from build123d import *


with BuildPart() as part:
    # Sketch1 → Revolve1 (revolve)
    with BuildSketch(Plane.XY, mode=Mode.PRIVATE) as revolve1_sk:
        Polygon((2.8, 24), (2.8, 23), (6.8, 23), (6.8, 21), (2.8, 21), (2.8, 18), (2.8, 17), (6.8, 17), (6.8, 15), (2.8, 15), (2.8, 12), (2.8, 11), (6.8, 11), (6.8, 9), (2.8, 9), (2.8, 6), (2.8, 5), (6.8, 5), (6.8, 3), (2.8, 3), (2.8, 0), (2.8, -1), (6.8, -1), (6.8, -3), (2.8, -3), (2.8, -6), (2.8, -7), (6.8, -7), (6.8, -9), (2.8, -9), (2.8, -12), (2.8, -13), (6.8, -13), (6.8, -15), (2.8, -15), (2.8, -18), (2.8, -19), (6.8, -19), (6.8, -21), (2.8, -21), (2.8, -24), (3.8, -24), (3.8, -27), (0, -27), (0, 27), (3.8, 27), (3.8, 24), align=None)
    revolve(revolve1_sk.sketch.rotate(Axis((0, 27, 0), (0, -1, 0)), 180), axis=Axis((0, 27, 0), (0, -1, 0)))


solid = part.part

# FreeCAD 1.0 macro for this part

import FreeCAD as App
import Part
import Sketcher

V = App.Vector
Q = App.Units.Quantity

doc = App.newDocument("Part")
body = doc.addObject("PartDesign::Body", "Body")

sketch1 = body.newObject("Sketcher::SketchObject", "Sketch")
sketch1.AttachmentSupport = (doc.getObject("XY_Plane"), [""])
sketch1.MapMode = "FlatFace"
sketch1.addGeometry(Part.LineSegment(V(2.8, 23, 0), V(2.8, 24, 0)), False)
sketch1.addGeometry(Part.LineSegment(V(2.8, 24, 0), V(3.8, 24, 0)), False)
sketch1.addGeometry(Part.LineSegment(V(3.8, 24, 0), V(3.8, 27, 0)), False)
sketch1.addGeometry(Part.LineSegment(V(3.8, 27, 0), V(0, 27, 0)), False)
sketch1.addGeometry(Part.LineSegment(V(0, 27, 0), V(0, -27, 0)), False)
sketch1.addGeometry(Part.LineSegment(V(0, -27, 0), V(3.8, -27, 0)), False)
sketch1.addGeometry(Part.LineSegment(V(3.8, -27, 0), V(3.8, -24, 0)), False)
sketch1.addGeometry(Part.LineSegment(V(3.8, -24, 0), V(2.8, -24, 0)), False)
sketch1.addGeometry(Part.LineSegment(V(2.8, -24, 0), V(2.8, -21, 0)), False)
sketch1.addGeometry(Part.LineSegment(V(2.8, -21, 0), V(6.8, -21, 0)), False)
sketch1.addGeometry(Part.LineSegment(V(6.8, -21, 0), V(6.8, -19, 0)), False)
sketch1.addGeometry(Part.LineSegment(V(6.8, -19, 0), V(2.8, -19, 0)), False)
sketch1.addGeometry(Part.LineSegment(V(2.8, -19, 0), V(2.8, -15, 0)), False)
sketch1.addGeometry(Part.LineSegment(V(2.8, -15, 0), V(6.8, -15, 0)), False)
sketch1.addGeometry(Part.LineSegment(V(6.8, -15, 0), V(6.8, -13, 0)), False)
sketch1.addGeometry(Part.LineSegment(V(6.8, -13, 0), V(2.8, -13, 0)), False)
sketch1.addGeometry(Part.LineSegment(V(2.8, -13, 0), V(2.8, -9, 0)), False)
sketch1.addGeometry(Part.LineSegment(V(2.8, -9, 0), V(6.8, -9, 0)), False)
sketch1.addGeometry(Part.LineSegment(V(6.8, -9, 0), V(6.8, -7, 0)), False)
sketch1.addGeometry(Part.LineSegment(V(6.8, -7, 0), V(2.8, -7, 0)), False)
sketch1.addGeometry(Part.LineSegment(V(2.8, -7, 0), V(2.8, -3, 0)), False)
sketch1.addGeometry(Part.LineSegment(V(2.8, -3, 0), V(6.8, -3, 0)), False)
sketch1.addGeometry(Part.LineSegment(V(6.8, -3, 0), V(6.8, -1, 0)), False)
sketch1.addGeometry(Part.LineSegment(V(6.8, -1, 0), V(2.8, -1, 0)), False)
sketch1.addGeometry(Part.LineSegment(V(2.8, -1, 0), V(2.8, 3, 0)), False)
sketch1.addGeometry(Part.LineSegment(V(2.8, 3, 0), V(6.8, 3, 0)), False)
sketch1.addGeometry(Part.LineSegment(V(6.8, 3, 0), V(6.8, 5, 0)), False)
sketch1.addGeometry(Part.LineSegment(V(6.8, 5, 0), V(2.8, 5, 0)), False)
sketch1.addGeometry(Part.LineSegment(V(2.8, 5, 0), V(2.8, 9, 0)), False)
sketch1.addGeometry(Part.LineSegment(V(2.8, 9, 0), V(6.8, 9, 0)), False)
sketch1.addGeometry(Part.LineSegment(V(6.8, 9, 0), V(6.8, 11, 0)), False)
sketch1.addGeometry(Part.LineSegment(V(6.8, 11, 0), V(2.8, 11, 0)), False)
sketch1.addGeometry(Part.LineSegment(V(2.8, 11, 0), V(2.8, 15, 0)), False)
sketch1.addGeometry(Part.LineSegment(V(2.8, 15, 0), V(6.8, 15, 0)), False)
sketch1.addGeometry(Part.LineSegment(V(6.8, 15, 0), V(6.8, 17, 0)), False)
sketch1.addGeometry(Part.LineSegment(V(6.8, 17, 0), V(2.8, 17, 0)), False)
sketch1.addGeometry(Part.LineSegment(V(2.8, 17, 0), V(2.8, 21, 0)), False)
sketch1.addGeometry(Part.LineSegment(V(2.8, 21, 0), V(6.8, 21, 0)), False)
sketch1.addGeometry(Part.LineSegment(V(6.8, 21, 0), V(6.8, 23, 0)), False)
sketch1.addGeometry(Part.LineSegment(V(6.8, 23, 0), V(2.8, 23, 0)), False)
sketch1.addConstraint(Sketcher.Constraint("Coincident", 0, 2, 1, 1))
sketch1.addConstraint(Sketcher.Constraint("Coincident", 1, 2, 2, 1))
sketch1.addConstraint(Sketcher.Constraint("Coincident", 2, 2, 3, 1))
sketch1.addConstraint(Sketcher.Constraint("Coincident", 3, 2, 4, 1))
sketch1.addConstraint(Sketcher.Constraint("Coincident", 4, 2, 5, 1))
sketch1.addConstraint(Sketcher.Constraint("Coincident", 5, 2, 6, 1))
sketch1.addConstraint(Sketcher.Constraint("Coincident", 6, 2, 7, 1))
sketch1.addConstraint(Sketcher.Constraint("Coincident", 7, 2, 8, 1))
sketch1.addConstraint(Sketcher.Constraint("Coincident", 8, 2, 9, 1))
sketch1.addConstraint(Sketcher.Constraint("Coincident", 9, 2, 10, 1))
sketch1.addConstraint(Sketcher.Constraint("Coincident", 10, 2, 11, 1))
sketch1.addConstraint(Sketcher.Constraint("Coincident", 11, 2, 12, 1))
sketch1.addConstraint(Sketcher.Constraint("Coincident", 12, 2, 13, 1))
sketch1.addConstraint(Sketcher.Constraint("Coincident", 13, 2, 14, 1))
sketch1.addConstraint(Sketcher.Constraint("Coincident", 14, 2, 15, 1))
sketch1.addConstraint(Sketcher.Constraint("Coincident", 15, 2, 16, 1))
sketch1.addConstraint(Sketcher.Constraint("Coincident", 16, 2, 17, 1))
sketch1.addConstraint(Sketcher.Constraint("Coincident", 17, 2, 18, 1))
sketch1.addConstraint(Sketcher.Constraint("Coincident", 18, 2, 19, 1))
sketch1.addConstraint(Sketcher.Constraint("Coincident", 19, 2, 20, 1))
sketch1.addConstraint(Sketcher.Constraint("Coincident", 20, 2, 21, 1))
sketch1.addConstraint(Sketcher.Constraint("Coincident", 21, 2, 22, 1))
sketch1.addConstraint(Sketcher.Constraint("Coincident", 22, 2, 23, 1))
sketch1.addConstraint(Sketcher.Constraint("Coincident", 23, 2, 24, 1))
sketch1.addConstraint(Sketcher.Constraint("Coincident", 24, 2, 25, 1))
sketch1.addConstraint(Sketcher.Constraint("Coincident", 25, 2, 26, 1))
sketch1.addConstraint(Sketcher.Constraint("Coincident", 26, 2, 27, 1))
sketch1.addConstraint(Sketcher.Constraint("Coincident", 27, 2, 28, 1))
sketch1.addConstraint(Sketcher.Constraint("Coincident", 28, 2, 29, 1))
sketch1.addConstraint(Sketcher.Constraint("Coincident", 29, 2, 30, 1))
sketch1.addConstraint(Sketcher.Constraint("Coincident", 30, 2, 31, 1))
sketch1.addConstraint(Sketcher.Constraint("Coincident", 31, 2, 32, 1))
sketch1.addConstraint(Sketcher.Constraint("Coincident", 32, 2, 33, 1))
sketch1.addConstraint(Sketcher.Constraint("Coincident", 33, 2, 34, 1))
sketch1.addConstraint(Sketcher.Constraint("Coincident", 34, 2, 35, 1))
sketch1.addConstraint(Sketcher.Constraint("Coincident", 35, 2, 36, 1))
sketch1.addConstraint(Sketcher.Constraint("Coincident", 36, 2, 37, 1))
sketch1.addConstraint(Sketcher.Constraint("Coincident", 37, 2, 38, 1))
sketch1.addConstraint(Sketcher.Constraint("Coincident", 38, 2, 39, 1))
sketch1.addConstraint(Sketcher.Constraint("Coincident", 39, 2, 0, 1))
sketch1.addConstraint(Sketcher.Constraint("Vertical", 0))
sketch1.addConstraint(Sketcher.Constraint("Horizontal", 1))
sketch1.addConstraint(Sketcher.Constraint("Vertical", 2))
sketch1.addConstraint(Sketcher.Constraint("Horizontal", 3))
sketch1.addConstraint(Sketcher.Constraint("Vertical", 4))
sketch1.addConstraint(Sketcher.Constraint("Horizontal", 5))
sketch1.addConstraint(Sketcher.Constraint("Vertical", 6))
sketch1.addConstraint(Sketcher.Constraint("Horizontal", 7))
sketch1.addConstraint(Sketcher.Constraint("Vertical", 8))
sketch1.addConstraint(Sketcher.Constraint("Horizontal", 9))
sketch1.addConstraint(Sketcher.Constraint("Vertical", 10))
sketch1.addConstraint(Sketcher.Constraint("Horizontal", 11))
sketch1.addConstraint(Sketcher.Constraint("Vertical", 12))
sketch1.addConstraint(Sketcher.Constraint("Horizontal", 13))
sketch1.addConstraint(Sketcher.Constraint("Vertical", 14))
sketch1.addConstraint(Sketcher.Constraint("Horizontal", 15))
sketch1.addConstraint(Sketcher.Constraint("Vertical", 16))
sketch1.addConstraint(Sketcher.Constraint("Horizontal", 17))
sketch1.addConstraint(Sketcher.Constraint("Vertical", 18))
sketch1.addConstraint(Sketcher.Constraint("Horizontal", 19))
sketch1.addConstraint(Sketcher.Constraint("Vertical", 20))
sketch1.addConstraint(Sketcher.Constraint("Horizontal", 21))
sketch1.addConstraint(Sketcher.Constraint("Vertical", 22))
sketch1.addConstraint(Sketcher.Constraint("Horizontal", 23))
sketch1.addConstraint(Sketcher.Constraint("Vertical", 24))
sketch1.addConstraint(Sketcher.Constraint("Horizontal", 25))
sketch1.addConstraint(Sketcher.Constraint("Vertical", 26))
sketch1.addConstraint(Sketcher.Constraint("Horizontal", 27))
sketch1.addConstraint(Sketcher.Constraint("Vertical", 28))
sketch1.addConstraint(Sketcher.Constraint("Horizontal", 29))
sketch1.addConstraint(Sketcher.Constraint("Vertical", 30))
sketch1.addConstraint(Sketcher.Constraint("Horizontal", 31))
sketch1.addConstraint(Sketcher.Constraint("Vertical", 32))
sketch1.addConstraint(Sketcher.Constraint("Horizontal", 33))
sketch1.addConstraint(Sketcher.Constraint("Vertical", 34))
sketch1.addConstraint(Sketcher.Constraint("Horizontal", 35))
sketch1.addConstraint(Sketcher.Constraint("Vertical", 36))
sketch1.addConstraint(Sketcher.Constraint("Horizontal", 37))
sketch1.addConstraint(Sketcher.Constraint("Vertical", 38))
sketch1.addConstraint(Sketcher.Constraint("Horizontal", 39))
sketch1.addConstraint(Sketcher.Constraint("Symmetric", 3, 2, 4, 2, -1, 1))
sketch1.addConstraint(Sketcher.Constraint("Symmetric", 1, 2, 6, 2, -1))
sketch1.addConstraint(Sketcher.Constraint("Symmetric", 20, 2, 24, 2, -1))
sketch1.addConstraint(Sketcher.Constraint("Symmetric", 16, 2, 28, 2, -1))
sketch1.addConstraint(Sketcher.Constraint("Symmetric", 12, 2, 32, 2, -1))
sketch1.addConstraint(Sketcher.Constraint("Symmetric", 8, 2, 36, 2, -1))
sketch1.addConstraint(Sketcher.Constraint("Vertical", 0, 2, 7, 2))
sketch1.addConstraint(Sketcher.Constraint("Vertical", 8, 2, 11, 2))
sketch1.addConstraint(Sketcher.Constraint("Vertical", 10, 2, 13, 2))
sketch1.addConstraint(Sketcher.Constraint("Vertical", 12, 2, 15, 2))
sketch1.addConstraint(Sketcher.Constraint("Vertical", 14, 2, 17, 2))
sketch1.addConstraint(Sketcher.Constraint("Vertical", 16, 2, 19, 2))
sketch1.addConstraint(Sketcher.Constraint("Vertical", 18, 2, 21, 2))
sketch1.addConstraint(Sketcher.Constraint("Vertical", 22, 2, 25, 2))
sketch1.addConstraint(Sketcher.Constraint("Vertical", 26, 2, 29, 2))
sketch1.addConstraint(Sketcher.Constraint("Vertical", 30, 2, 33, 2))
sketch1.addConstraint(Sketcher.Constraint("Vertical", 34, 2, 37, 2))
sketch1.addConstraint(Sketcher.Constraint("Equal", 7, 0))
sketch1.addConstraint(Sketcher.Constraint("Equal", 6, 8))
sketch1.addConstraint(Sketcher.Constraint("Equal", 39, 12))
sketch1.addConstraint(Sketcher.Constraint("Equal", 10, 14))
sketch1.addConstraint(Sketcher.Constraint("Equal", 12, 16))
sketch1.addConstraint(Sketcher.Constraint("Equal", 14, 18))
sketch1.addConstraint(Sketcher.Constraint("Equal", 16, 20))
sketch1.addConstraint(Sketcher.Constraint("Equal", 18, 22))
sketch1.addConstraint(Sketcher.Constraint("Equal", 20, 24))
sketch1.addConstraint(Sketcher.Constraint("Equal", 22, 26))
sketch1.addConstraint(Sketcher.Constraint("Equal", 26, 30))
sketch1.addConstraint(Sketcher.Constraint("Equal", 30, 34))
sketch1.addConstraint(Sketcher.Constraint("Equal", 34, 38))
sketch1.addConstraint(Sketcher.Constraint("DistanceX", 1, 1, 1, 2, Q("1 mm")))
sketch1.addConstraint(Sketcher.Constraint("DistanceX", 9, 1, 9, 2, Q("4 mm")))
sketch1.addConstraint(Sketcher.Constraint("DistanceY", 2, 1, 2, 2, Q("3 mm")))
sketch1.addConstraint(Sketcher.Constraint("DistanceX", 3, 2, 3, 1, Q("3.8 mm")))
revolution = body.newObject("PartDesign::Revolution", "Revolution")
revolution.Profile = sketch1
revolution.ReferenceAxis = (sketch1, ["V_Axis"])
revolution.Angle = 360

doc.recompute()
